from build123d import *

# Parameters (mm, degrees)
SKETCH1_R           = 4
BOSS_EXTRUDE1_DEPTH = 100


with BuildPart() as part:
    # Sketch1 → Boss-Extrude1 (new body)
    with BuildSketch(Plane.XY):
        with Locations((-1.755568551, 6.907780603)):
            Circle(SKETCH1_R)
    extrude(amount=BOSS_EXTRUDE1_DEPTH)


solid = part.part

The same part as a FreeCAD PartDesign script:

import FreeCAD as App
import Part
import Sketcher
Q = App.Units.Quantity

doc = App.newDocument("Part")
params = doc.addObject("Spreadsheet::Sheet", "Params")
for row, (alias, value) in enumerate([
    ("sketch1_diameter", "8 mm"),
    ("pad1_length", "100 mm"),
], start=1):
    params.set(f"A{row}", alias)
    params.set(f"B{row}", "=" + value)
    params.setAlias(f"B{row}", alias)

body = doc.addObject("PartDesign::Body", "Body")

# Sketch on XY plane
sketch1 = doc.addObject("Sketcher::SketchObject", "Sketch")
body.addObject(sketch1)
sketch1.AttachmentSupport = (doc.XY_Plane, [""])
sketch1.MapMode = "FlatFace"
sketch1.addGeometry(Part.Circle(App.Vector(-1.8, 6.9, 0), App.Vector(0, 0, 1), 4), False)
sketch1.addConstraint([
    Sketcher.Constraint("Diameter", 0, Q("8 mm")),
    Sketcher.Constraint("DistanceX", 0, 3, -1, 1, Q("1.755569 mm")),
    Sketcher.Constraint("DistanceY", -1, 1, 0, 3, Q("6.907781 mm")),
])
sketch1.setExpression("Constraints[0]", "Params.sketch1_diameter")
pad1 = doc.addObject("PartDesign::Pad", "Pad")
body.addObject(pad1)
pad1.Profile = sketch1
pad1.setExpression("Length", "Params.pad1_length")

doc.recompute()
